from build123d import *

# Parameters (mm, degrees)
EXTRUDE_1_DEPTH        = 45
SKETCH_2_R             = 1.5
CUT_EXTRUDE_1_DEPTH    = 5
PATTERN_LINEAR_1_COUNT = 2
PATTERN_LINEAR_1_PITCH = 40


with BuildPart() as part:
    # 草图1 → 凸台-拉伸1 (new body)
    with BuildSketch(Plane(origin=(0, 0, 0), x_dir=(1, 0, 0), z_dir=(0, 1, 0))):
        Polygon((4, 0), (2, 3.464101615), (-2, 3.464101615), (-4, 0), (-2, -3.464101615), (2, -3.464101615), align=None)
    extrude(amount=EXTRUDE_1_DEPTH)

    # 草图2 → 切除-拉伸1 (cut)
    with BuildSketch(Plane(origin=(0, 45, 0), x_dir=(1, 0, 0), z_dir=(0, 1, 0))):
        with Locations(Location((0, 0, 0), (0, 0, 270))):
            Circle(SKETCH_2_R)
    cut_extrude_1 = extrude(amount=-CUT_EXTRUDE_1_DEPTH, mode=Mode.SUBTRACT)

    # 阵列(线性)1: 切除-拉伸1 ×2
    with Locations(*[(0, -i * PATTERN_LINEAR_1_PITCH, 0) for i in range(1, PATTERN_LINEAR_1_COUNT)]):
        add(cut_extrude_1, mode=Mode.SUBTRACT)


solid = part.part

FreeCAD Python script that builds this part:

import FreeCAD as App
import Part
import Sketcher
from FreeCAD import Vector
Q = App.Units.Quantity

doc = App.newDocument("Part")
body = doc.addObject("PartDesign::Body", "Body")

# Sketch on XZ plane
sketch1 = body.newObject("Sketcher::SketchObject", "Sketch")
sketch1.AttachmentSupport = (doc.getObject("XZ_Plane"), [""])
sketch1.MapMode = "FlatFace"
sketch1.addGeometry(Part.LineSegment(Vector(4, 0, 0), Vector(2, -3.5, 0)), False)
sketch1.addGeometry(Part.LineSegment(Vector(2, -3.5, 0), Vector(-2, -3.5, 0)), False)
sketch1.addGeometry(Part.LineSegment(Vector(-2, -3.5, 0), Vector(-4, 0, 0)), False)
sketch1.addGeometry(Part.LineSegment(Vector(-4, 0, 0), Vector(-2, 3.5, 0)), False)
sketch1.addGeometry(Part.LineSegment(Vector(-2, 3.5, 0), Vector(2, 3.5, 0)), False)
sketch1.addGeometry(Part.LineSegment(Vector(2, 3.5, 0), Vector(4, 0, 0)), False)
sketch1.addConstraint(Sketcher.Constraint("Coincident", 0, 2, 1, 1))
sketch1.addConstraint(Sketcher.Constraint("Coincident", 1, 2, 2, 1))
sketch1.addConstraint(Sketcher.Constraint("Coincident", 2, 2, 3, 1))
sketch1.addConstraint(Sketcher.Constraint("Coincident", 3, 2, 4, 1))
sketch1.addConstraint(Sketcher.Constraint("Coincident", 4, 2, 5, 1))
sketch1.addConstraint(Sketcher.Constraint("Coincident", 5, 2, 0, 1))
sketch1.addConstraint(Sketcher.Constraint("Horizontal", 1))
sketch1.addConstraint(Sketcher.Constraint("Horizontal", 4))
sketch1.addConstraint(Sketcher.Constraint("Symmetric", 0, 2, 3, 2, -1, 1))
sketch1.addConstraint(Sketcher.Constraint("Symmetric", 2, 2, 5, 2, -1, 1))
sketch1.addConstraint(Sketcher.Constraint("PointOnObject", 2, 2, -1))
sketch1.addConstraint(Sketcher.Constraint("Parallel", 2, 5))
sketch1.addConstraint(Sketcher.Constraint("Vertical", 1, 2, 3, 2))
sketch1.addConstraint(Sketcher.Constraint("DistanceX", 1, 2, 1, 1, 4.0))
sketch1.addConstraint(Sketcher.Constraint("Angle", 0, Q("-120 deg")))
sketch1.addConstraint(Sketcher.Constraint("Distance", 0, 4.0))
pad1 = body.newObject("PartDesign::Pad", "Pad")
pad1.Profile = sketch1
pad1.Length = 45
pad1.Reversed = True

# Sketch on XZ plane
sketch2 = body.newObject("Sketcher::SketchObject", "Sketch001")
sketch2.AttachmentSupport = (doc.getObject("XZ_Plane"), [""])
sketch2.MapMode = "FlatFace"
sketch2.AttachmentOffset = App.Placement(Vector(0, 0, -45), App.Rotation())
sketch2.addGeometry(Part.Circle(Vector(0, 0, 0), Vector(0, 0, 1), 1.5), False)
sketch2.addConstraint(Sketcher.Constraint("Coincident", 0, 3, -1, 1))
sketch2.addConstraint(Sketcher.Constraint("Diameter", 0, 3.0))
pocket1 = body.newObject("PartDesign::Pocket", "Pocket")
pocket1.Profile = sketch2
pocket1.Length = 5
pocket1.Reversed = True
doc.recompute()

linearpattern = body.newObject("PartDesign::LinearPattern", "LinearPattern")
linearpattern.Originals = [pocket1]
linearpattern.Direction = (doc.getObject("Y_Axis"), [""])
linearpattern.Mode = "offset"
linearpattern.Offset = 40
linearpattern.Occurrences = 2
linearpattern.Reversed = True
body.Tip = linearpattern

doc.recompute()
